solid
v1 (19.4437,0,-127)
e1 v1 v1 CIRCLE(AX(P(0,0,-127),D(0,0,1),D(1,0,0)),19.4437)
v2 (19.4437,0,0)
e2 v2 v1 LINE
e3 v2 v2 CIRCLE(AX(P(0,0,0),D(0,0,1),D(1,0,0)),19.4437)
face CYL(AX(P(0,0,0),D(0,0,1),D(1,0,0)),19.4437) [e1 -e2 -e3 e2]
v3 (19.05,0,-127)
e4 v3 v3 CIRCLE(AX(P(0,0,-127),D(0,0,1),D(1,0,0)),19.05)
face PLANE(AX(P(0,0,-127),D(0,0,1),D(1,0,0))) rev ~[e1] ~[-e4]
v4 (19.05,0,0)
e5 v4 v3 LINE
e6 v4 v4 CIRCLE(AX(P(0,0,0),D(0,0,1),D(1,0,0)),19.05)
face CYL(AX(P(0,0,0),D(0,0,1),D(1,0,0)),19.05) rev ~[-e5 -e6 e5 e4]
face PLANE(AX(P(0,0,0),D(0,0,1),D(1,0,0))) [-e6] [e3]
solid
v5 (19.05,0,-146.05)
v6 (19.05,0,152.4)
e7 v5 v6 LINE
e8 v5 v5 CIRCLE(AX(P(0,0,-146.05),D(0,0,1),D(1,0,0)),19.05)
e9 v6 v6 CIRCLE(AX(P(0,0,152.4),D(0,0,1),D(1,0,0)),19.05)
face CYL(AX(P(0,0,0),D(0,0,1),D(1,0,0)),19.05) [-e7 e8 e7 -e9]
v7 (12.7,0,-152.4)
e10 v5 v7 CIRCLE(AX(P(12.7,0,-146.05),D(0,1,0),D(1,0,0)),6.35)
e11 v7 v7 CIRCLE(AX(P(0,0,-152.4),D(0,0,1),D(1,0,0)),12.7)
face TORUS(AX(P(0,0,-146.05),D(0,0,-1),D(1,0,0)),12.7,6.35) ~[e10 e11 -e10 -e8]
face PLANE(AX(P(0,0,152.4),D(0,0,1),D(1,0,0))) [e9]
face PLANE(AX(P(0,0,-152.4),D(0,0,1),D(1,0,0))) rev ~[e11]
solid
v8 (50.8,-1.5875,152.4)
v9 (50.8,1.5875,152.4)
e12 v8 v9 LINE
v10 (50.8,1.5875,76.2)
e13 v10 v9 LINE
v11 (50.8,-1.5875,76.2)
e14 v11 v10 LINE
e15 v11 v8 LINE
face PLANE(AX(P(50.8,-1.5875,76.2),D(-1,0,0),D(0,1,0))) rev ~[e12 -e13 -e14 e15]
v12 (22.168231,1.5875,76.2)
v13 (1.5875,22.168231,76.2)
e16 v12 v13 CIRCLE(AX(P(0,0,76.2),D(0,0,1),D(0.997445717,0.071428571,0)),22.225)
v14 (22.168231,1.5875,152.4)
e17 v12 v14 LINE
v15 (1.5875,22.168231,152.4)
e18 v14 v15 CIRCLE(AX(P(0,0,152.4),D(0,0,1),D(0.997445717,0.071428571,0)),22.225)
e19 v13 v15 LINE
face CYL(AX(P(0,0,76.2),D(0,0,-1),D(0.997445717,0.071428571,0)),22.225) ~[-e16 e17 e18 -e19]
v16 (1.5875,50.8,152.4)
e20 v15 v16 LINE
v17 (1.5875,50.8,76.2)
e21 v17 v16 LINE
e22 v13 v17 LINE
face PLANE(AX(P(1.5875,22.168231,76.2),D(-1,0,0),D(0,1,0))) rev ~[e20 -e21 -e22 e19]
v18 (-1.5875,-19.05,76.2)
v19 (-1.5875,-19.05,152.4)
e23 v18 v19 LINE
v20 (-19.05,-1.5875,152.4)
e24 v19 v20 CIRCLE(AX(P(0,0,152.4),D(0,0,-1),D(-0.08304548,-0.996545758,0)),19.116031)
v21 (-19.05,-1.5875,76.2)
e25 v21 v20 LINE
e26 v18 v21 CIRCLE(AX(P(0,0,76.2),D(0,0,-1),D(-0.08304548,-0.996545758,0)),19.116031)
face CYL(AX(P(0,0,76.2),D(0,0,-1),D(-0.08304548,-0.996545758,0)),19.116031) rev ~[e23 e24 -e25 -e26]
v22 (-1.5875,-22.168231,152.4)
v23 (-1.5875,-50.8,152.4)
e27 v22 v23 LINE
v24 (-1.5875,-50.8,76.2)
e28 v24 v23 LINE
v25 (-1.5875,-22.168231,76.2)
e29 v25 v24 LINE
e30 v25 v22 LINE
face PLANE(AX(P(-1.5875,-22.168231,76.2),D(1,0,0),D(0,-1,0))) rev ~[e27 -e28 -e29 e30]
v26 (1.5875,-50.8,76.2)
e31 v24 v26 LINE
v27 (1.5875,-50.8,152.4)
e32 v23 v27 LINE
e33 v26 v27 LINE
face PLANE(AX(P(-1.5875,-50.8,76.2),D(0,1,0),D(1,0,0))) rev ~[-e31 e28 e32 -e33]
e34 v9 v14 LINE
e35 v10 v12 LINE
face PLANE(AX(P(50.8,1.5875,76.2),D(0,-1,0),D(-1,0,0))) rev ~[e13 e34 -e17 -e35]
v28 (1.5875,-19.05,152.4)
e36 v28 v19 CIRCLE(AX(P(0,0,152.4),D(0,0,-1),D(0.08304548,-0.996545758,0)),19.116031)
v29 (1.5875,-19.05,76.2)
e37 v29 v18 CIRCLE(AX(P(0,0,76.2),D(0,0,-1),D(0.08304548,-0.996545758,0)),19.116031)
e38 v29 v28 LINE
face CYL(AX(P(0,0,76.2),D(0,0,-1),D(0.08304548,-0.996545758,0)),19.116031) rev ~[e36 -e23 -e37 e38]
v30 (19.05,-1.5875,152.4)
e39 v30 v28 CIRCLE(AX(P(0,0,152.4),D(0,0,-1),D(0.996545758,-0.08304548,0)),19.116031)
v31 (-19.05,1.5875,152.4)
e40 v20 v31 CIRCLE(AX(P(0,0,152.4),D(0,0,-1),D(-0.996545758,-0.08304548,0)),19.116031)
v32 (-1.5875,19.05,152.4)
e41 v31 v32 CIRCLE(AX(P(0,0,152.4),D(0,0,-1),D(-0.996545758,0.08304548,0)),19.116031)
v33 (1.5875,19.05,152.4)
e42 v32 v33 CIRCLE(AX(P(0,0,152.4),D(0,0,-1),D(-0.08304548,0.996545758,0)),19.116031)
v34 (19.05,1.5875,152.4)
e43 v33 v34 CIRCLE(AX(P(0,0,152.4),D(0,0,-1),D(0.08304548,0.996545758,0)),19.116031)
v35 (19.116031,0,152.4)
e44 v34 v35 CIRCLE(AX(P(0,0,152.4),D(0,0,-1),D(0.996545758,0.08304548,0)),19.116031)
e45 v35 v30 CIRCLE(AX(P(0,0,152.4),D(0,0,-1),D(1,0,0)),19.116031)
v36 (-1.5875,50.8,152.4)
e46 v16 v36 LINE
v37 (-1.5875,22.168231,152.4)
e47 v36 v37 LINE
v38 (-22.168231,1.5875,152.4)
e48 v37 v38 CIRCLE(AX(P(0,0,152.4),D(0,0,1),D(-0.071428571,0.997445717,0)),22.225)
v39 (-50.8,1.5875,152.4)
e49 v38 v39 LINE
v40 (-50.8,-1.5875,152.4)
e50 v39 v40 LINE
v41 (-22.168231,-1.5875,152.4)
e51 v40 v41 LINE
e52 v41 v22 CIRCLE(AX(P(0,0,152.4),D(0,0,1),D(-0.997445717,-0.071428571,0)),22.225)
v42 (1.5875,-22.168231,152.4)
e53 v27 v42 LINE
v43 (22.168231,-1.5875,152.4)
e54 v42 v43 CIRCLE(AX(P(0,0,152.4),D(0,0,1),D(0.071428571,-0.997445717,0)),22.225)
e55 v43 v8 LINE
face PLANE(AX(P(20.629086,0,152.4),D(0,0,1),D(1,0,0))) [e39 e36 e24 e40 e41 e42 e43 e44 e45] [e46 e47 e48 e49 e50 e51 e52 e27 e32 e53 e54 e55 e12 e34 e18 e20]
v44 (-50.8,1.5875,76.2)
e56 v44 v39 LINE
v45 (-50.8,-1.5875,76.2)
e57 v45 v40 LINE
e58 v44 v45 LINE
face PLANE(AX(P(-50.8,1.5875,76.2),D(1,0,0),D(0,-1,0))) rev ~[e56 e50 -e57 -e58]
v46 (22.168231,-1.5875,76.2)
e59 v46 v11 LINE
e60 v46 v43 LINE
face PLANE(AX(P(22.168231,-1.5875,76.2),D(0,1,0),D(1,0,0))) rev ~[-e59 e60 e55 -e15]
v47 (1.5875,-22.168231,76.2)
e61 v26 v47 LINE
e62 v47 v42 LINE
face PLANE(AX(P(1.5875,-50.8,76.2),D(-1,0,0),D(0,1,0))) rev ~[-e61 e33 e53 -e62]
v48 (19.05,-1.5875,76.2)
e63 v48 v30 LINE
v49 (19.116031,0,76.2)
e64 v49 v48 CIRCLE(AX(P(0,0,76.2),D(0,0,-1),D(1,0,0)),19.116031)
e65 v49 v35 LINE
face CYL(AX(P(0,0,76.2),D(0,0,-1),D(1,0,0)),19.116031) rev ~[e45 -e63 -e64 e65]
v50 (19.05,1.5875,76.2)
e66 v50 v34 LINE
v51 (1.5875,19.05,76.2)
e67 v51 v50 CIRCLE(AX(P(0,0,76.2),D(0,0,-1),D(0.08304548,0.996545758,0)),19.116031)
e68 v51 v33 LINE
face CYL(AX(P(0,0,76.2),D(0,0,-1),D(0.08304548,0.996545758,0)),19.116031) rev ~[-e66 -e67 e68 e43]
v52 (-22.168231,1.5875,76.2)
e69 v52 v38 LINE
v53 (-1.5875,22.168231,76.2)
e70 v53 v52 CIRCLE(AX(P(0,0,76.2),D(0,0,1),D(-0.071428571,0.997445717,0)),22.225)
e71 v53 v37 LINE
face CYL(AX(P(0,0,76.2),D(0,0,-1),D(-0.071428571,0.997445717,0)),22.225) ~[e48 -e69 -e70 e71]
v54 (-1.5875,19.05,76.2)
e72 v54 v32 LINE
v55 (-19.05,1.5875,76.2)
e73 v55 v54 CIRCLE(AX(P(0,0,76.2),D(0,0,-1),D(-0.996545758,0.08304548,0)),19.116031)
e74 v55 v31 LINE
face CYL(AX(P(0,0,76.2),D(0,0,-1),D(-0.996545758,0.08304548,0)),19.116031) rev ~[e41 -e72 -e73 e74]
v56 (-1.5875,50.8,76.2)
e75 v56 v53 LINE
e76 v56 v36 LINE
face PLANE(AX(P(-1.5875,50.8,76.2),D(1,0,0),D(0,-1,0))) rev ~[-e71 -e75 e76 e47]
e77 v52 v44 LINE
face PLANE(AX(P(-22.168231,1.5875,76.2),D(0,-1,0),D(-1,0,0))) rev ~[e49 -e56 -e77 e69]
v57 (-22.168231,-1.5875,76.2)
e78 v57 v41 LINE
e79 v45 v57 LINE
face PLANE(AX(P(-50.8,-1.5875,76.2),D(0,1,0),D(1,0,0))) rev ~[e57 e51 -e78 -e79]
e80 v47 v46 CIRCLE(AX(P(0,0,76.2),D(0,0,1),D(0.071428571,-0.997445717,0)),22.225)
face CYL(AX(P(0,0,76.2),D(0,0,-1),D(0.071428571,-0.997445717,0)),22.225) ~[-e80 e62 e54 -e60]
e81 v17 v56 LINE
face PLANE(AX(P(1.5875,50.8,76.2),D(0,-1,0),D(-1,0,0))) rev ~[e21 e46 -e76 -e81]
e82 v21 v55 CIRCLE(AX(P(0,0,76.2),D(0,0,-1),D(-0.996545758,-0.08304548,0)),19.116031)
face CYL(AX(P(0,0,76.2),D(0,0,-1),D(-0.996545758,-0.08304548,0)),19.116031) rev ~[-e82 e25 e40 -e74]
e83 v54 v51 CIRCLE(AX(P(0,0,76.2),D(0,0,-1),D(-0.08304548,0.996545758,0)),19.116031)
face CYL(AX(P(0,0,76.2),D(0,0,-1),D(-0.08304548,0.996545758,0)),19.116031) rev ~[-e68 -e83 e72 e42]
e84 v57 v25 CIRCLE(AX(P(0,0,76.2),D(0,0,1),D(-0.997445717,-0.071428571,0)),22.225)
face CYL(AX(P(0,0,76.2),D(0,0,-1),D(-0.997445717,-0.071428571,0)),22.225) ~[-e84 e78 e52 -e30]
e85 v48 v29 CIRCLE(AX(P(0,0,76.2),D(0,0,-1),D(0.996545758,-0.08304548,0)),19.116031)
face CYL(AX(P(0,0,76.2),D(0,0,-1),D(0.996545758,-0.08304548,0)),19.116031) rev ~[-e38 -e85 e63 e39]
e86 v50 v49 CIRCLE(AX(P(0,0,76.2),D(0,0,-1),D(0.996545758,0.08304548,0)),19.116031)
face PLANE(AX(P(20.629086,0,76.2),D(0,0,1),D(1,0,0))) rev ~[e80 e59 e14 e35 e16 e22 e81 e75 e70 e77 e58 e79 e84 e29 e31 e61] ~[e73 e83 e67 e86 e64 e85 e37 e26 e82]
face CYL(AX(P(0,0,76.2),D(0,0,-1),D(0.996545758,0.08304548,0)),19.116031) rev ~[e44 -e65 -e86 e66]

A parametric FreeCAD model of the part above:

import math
import FreeCAD as App
import Part
import Sketcher
Q = App.Units.Quantity


def edges_at(feature, points):
    """Names of the edges that pass closest to the given points."""
    edges = feature.Shape.Edges
    near = lambda p: min(range(len(edges)), key=lambda i: edges[i].distToShape(Part.Vertex(*p))[0])
    return sorted({f"Edge{near(p) + 1}" for p in points})

doc = App.newDocument("Part")
body = doc.addObject("PartDesign::Body", "Body")

# Sketch on XY plane
sketch1 = body.newObject("Sketcher::SketchObject", "Sketch")
sketch1.AttachmentSupport = (doc.getObject("XY_Plane"), [""])
sketch1.MapMode = "FlatFace"
sketch1.addGeometry(Part.Circle(App.Vector(0, 0, 0), App.Vector(0, 0, 1), 19), False)
sketch1.addConstraint(Sketcher.Constraint("Coincident", 0, 3, -1, 1))
sketch1.addConstraint(Sketcher.Constraint("Diameter", 0, Q("1.5 in")))
pad1 = body.newObject("PartDesign::Pad", "Pad")
pad1.Profile = sketch1
pad1.Type = "TwoLengths"
pad1.Length = Q("6 in")
pad1.Length2 = Q("6 in")
doc.recompute()

fillet = body.newObject("PartDesign::Fillet", "Fillet")
fillet.Base = (pad1, edges_at(pad1, [(-19.05, 0, -152.4)]))
fillet.Radius = Q("0.25 in")
body2 = doc.addObject("PartDesign::Body", "Body001")

# Sketch on XY plane
sketch2 = body2.newObject("Sketcher::SketchObject", "Sketch001")
sketch2.AttachmentSupport = (doc.getObject("XY_Plane001"), [""])
sketch2.MapMode = "FlatFace"
sketch2.AttachmentOffset = App.Placement(App.Vector(0, 0, 3 * 25.4), App.Rotation())
sketch2.addGeometry(Part.ArcOfCircle(Part.Circle(App.Vector(0, 0, 0), App.Vector(0, 0, 1), 22.2), math.radians(-176), math.radians(-94)), False)
sketch2.addGeometry(Part.LineSegment(App.Vector(-1.6, -22.2, 0), App.Vector(-1.6, -50.8, 0)), False)
sketch2.addGeometry(Part.LineSegment(App.Vector(-1.6, -50.8, 0), App.Vector(1.6, -50.8, 0)), False)
sketch2.addGeometry(Part.LineSegment(App.Vector(1.6, -50.8, 0), App.Vector(1.6, -22.2, 0)), False)
sketch2.addGeometry(Part.ArcOfCircle(Part.Circle(App.Vector(0, 0, 0), App.Vector(0, 0, 1), 22.2), math.radians(-86), math.radians(-4)), False)
sketch2.addGeometry(Part.LineSegment(App.Vector(22.2, -1.6, 0), App.Vector(50.8, -1.6, 0)), False)
sketch2.addGeometry(Part.LineSegment(App.Vector(50.8, -1.6, 0), App.Vector(50.8, 1.6, 0)), False)
sketch2.addGeometry(Part.LineSegment(App.Vector(50.8, 1.6, 0), App.Vector(22.2, 1.6, 0)), False)
sketch2.addGeometry(Part.ArcOfCircle(Part.Circle(App.Vector(0, 0, 0), App.Vector(0, 0, 1), 22.2), math.radians(4), math.radians(86)), False)
sketch2.addGeometry(Part.LineSegment(App.Vector(1.6, 22.2, 0), App.Vector(1.6, 50.8, 0)), False)
sketch2.addGeometry(Part.LineSegment(App.Vector(1.6, 50.8, 0), App.Vector(-1.6, 50.8, 0)), False)
sketch2.addGeometry(Part.LineSegment(App.Vector(-1.6, 50.8, 0), App.Vector(-1.6, 22.2, 0)), False)
sketch2.addGeometry(Part.ArcOfCircle(Part.Circle(App.Vector(0, 0, 0), App.Vector(0, 0, 1), 22.2), math.radians(94), math.radians(176)), False)
sketch2.addGeometry(Part.LineSegment(App.Vector(-22.2, 1.6, 0), App.Vector(-50.8, 1.6, 0)), False)
sketch2.addGeometry(Part.LineSegment(App.Vector(-50.8, 1.6, 0), App.Vector(-50.8, -1.6, 0)), False)
sketch2.addGeometry(Part.LineSegment(App.Vector(-50.8, -1.6, 0), App.Vector(-22.2, -1.6, 0)), False)
sketch2.addGeometry(Part.ArcOfCircle(Part.Circle(App.Vector(0, 0, 0), App.Vector(0, 0, 1), 19.1), math.radians(0), math.radians(4.76)), False)
sketch2.addGeometry(Part.ArcOfCircle(Part.Circle(App.Vector(0, 0, 0), App.Vector(0, 0, 1), 19.1), math.radians(-4.76), math.radians(0)), False)
sketch2.addGeometry(Part.ArcOfCircle(Part.Circle(App.Vector(0, 0, 0), App.Vector(0, 0, 1), 19.1), math.radians(-85), math.radians(-5)), False)
sketch2.addGeometry(Part.ArcOfCircle(Part.Circle(App.Vector(0, 0, 0), App.Vector(0, 0, 1), 19.1), math.radians(-94.76), math.radians(-85.24)), False)
sketch2.addGeometry(Part.ArcOfCircle(Part.Circle(App.Vector(0, 0, 0), App.Vector(0, 0, 1), 19.1), math.radians(-175), math.radians(-95)), False)
sketch2.addGeometry(Part.ArcOfCircle(Part.Circle(App.Vector(0, 0, 0), App.Vector(0, 0, 1), 19.1), math.radians(175.24), math.radians(184.76)), False)
sketch2.addGeometry(Part.ArcOfCircle(Part.Circle(App.Vector(0, 0, 0), App.Vector(0, 0, 1), 19.1), math.radians(95), math.radians(175)), False)
sketch2.addGeometry(Part.ArcOfCircle(Part.Circle(App.Vector(0, 0, 0), App.Vector(0, 0, 1), 19.1), math.radians(85.24), math.radians(94.76)), False)
sketch2.addGeometry(Part.ArcOfCircle(Part.Circle(App.Vector(0, 0, 0), App.Vector(0, 0, 1), 19.1), math.radians(5), math.radians(85)), False)
sketch2.addConstraint(Sketcher.Constraint("Coincident", 0, 2, 1, 1))
sketch2.addConstraint(Sketcher.Constraint("Coincident", 1, 2, 2, 1))
sketch2.addConstraint(Sketcher.Constraint("Coincident", 2, 2, 3, 1))
sketch2.addConstraint(Sketcher.Constraint("Coincident", 3, 2, 4, 1))
sketch2.addConstraint(Sketcher.Constraint("Coincident", 4, 2, 5, 1))
sketch2.addConstraint(Sketcher.Constraint("Coincident", 5, 2, 6, 1))
sketch2.addConstraint(Sketcher.Constraint("Coincident", 6, 2, 7, 1))
sketch2.addConstraint(Sketcher.Constraint("Coincident", 7, 2, 8, 1))
sketch2.addConstraint(Sketcher.Constraint("Coincident", 8, 2, 9, 1))
sketch2.addConstraint(Sketcher.Constraint("Coincident", 9, 2, 10, 1))
sketch2.addConstraint(Sketcher.Constraint("Coincident", 10, 2, 11, 1))
sketch2.addConstraint(Sketcher.Constraint("Coincident", 11, 2, 12, 1))
sketch2.addConstraint(Sketcher.Constraint("Coincident", 12, 2, 13, 1))
sketch2.addConstraint(Sketcher.Constraint("Coincident", 13, 2, 14, 1))
sketch2.addConstraint(Sketcher.Constraint("Coincident", 14, 2, 15, 1))
sketch2.addConstraint(Sketcher.Constraint("Coincident", 15, 2, 0, 1))
sketch2.addConstraint(Sketcher.Constraint("Tangent", 16, 1, 17, 2))
sketch2.addConstraint(Sketcher.Constraint("Tangent", 17, 1, 18, 2))
sketch2.addConstraint(Sketcher.Constraint("Tangent", 18, 1, 19, 2))
sketch2.addConstraint(Sketcher.Constraint("Tangent", 19, 1, 20, 2))
sketch2.addConstraint(Sketcher.Constraint("Tangent", 20, 1, 21, 2))
sketch2.addConstraint(Sketcher.Constraint("Tangent", 21, 1, 22, 2))
sketch2.addConstraint(Sketcher.Constraint("Tangent", 22, 1, 23, 2))
sketch2.addConstraint(Sketcher.Constraint("Tangent", 23, 1, 24, 2))
sketch2.addConstraint(Sketcher.Constraint("Tangent", 24, 1, 16, 2))
sketch2.addConstraint(Sketcher.Constraint("Vertical", 1))
sketch2.addConstraint(Sketcher.Constraint("Horizontal", 2))
sketch2.addConstraint(Sketcher.Constraint("Vertical", 3))
sketch2.addConstraint(Sketcher.Constraint("Horizontal", 5))
sketch2.addConstraint(Sketcher.Constraint("Vertical", 6))
sketch2.addConstraint(Sketcher.Constraint("Horizontal", 7))
sketch2.addConstraint(Sketcher.Constraint("Vertical", 9))
sketch2.addConstraint(Sketcher.Constraint("Horizontal", 10))
sketch2.addConstraint(Sketcher.Constraint("Vertical", 11))
sketch2.addConstraint(Sketcher.Constraint("Horizontal", 13))
sketch2.addConstraint(Sketcher.Constraint("Vertical", 14))
sketch2.addConstraint(Sketcher.Constraint("Horizontal", 15))
sketch2.addConstraint(Sketcher.Constraint("Coincident", 0, 3, -1, 1))
sketch2.addConstraint(Sketcher.Constraint("Coincident", 4, 3, -1, 1))
sketch2.addConstraint(Sketcher.Constraint("Coincident", 8, 3, -1, 1))
sketch2.addConstraint(Sketcher.Constraint("Coincident", 12, 3, -1, 1))
sketch2.addConstraint(Sketcher.Constraint("Coincident", 16, 3, -1, 1))
sketch2.addConstraint(Sketcher.Constraint("Coincident", 18, 3, -1, 1))
sketch2.addConstraint(Sketcher.Constraint("Coincident", 20, 3, -1, 1))
sketch2.addConstraint(Sketcher.Constraint("Coincident", 22, 3, -1, 1))
sketch2.addConstraint(Sketcher.Constraint("Equal", 0, 4))
sketch2.addConstraint(Sketcher.Constraint("Equal", 4, 8))
sketch2.addConstraint(Sketcher.Constraint("Equal", 8, 12))
sketch2.addConstraint(Sketcher.Constraint("Symmetric", 1, 2, 9, 2, -1, 1))
sketch2.addConstraint(Sketcher.Constraint("Symmetric", 5, 2, 13, 2, -1, 1))
sketch2.addConstraint(Sketcher.Constraint("PointOnObject", 16, 1, -1))
sketch2.addConstraint(Sketcher.Constraint("Horizontal", 0, 2, 3, 2))
sketch2.addConstraint(Sketcher.Constraint("Horizontal", 8, 2, 11, 2))
sketch2.addConstraint(Sketcher.Constraint("Horizontal", 7, 2, 12, 2))
sketch2.addConstraint(Sketcher.Constraint("Horizontal", 5, 2, 14, 2))
sketch2.addConstraint(Sketcher.Constraint("Horizontal", 15, 2, 17, 1))
sketch2.addConstraint(Sketcher.Constraint("Horizontal", 18, 1, 19, 1))
sketch2.addConstraint(Sketcher.Constraint("Horizontal", 17, 1, 20, 1))
sketch2.addConstraint(Sketcher.Constraint("Horizontal", 13, 2, 21, 1))
sketch2.addConstraint(Sketcher.Constraint("Horizontal", 22, 1, 23, 1))
sketch2.addConstraint(Sketcher.Constraint("Horizontal", 21, 1, 24, 1))
sketch2.addConstraint(Sketcher.Constraint("Vertical", 9, 2, 18, 1))
sketch2.addConstraint(Sketcher.Constraint("Vertical", 19, 1, 22, 1))
sketch2.addConstraint(Sketcher.Constraint("Equal", 15, 1))
sketch2.addConstraint(Sketcher.Constraint("Equal", 10, 6))
sketch2.addConstraint(Sketcher.Constraint("DistanceY", 1, 2, -1, 1, Q("2 in")))
sketch2.addConstraint(Sketcher.Constraint("Radius", 0, Q("0.875 in")))
sketch2.addConstraint(Sketcher.Constraint("DistanceX", 2, 1, 2, 2, Q("0.125 in")))
sketch2.addConstraint(Sketcher.Constraint("DistanceX", -1, 1, 17, 1, Q("0.75 in")))
pad2 = body2.newObject("PartDesign::Pad", "Pad001")
pad2.Profile = sketch2
pad2.Length = Q("3 in")
body3 = doc.addObject("PartDesign::Body", "Body002")

# Sketch on XY plane
sketch3 = body3.newObject("Sketcher::SketchObject", "Sketch002")
sketch3.AttachmentSupport = (doc.getObject("XY_Plane002"), [""])
sketch3.MapMode = "FlatFace"
sketch3.addGeometry(Part.Circle(App.Vector(0, 0, 0), App.Vector(0, 0, 1), 19), False)
sketch3.addGeometry(Part.Circle(App.Vector(0, 0, 0), App.Vector(0, 0, 1), 19), False)
sketch3.addConstraint(Sketcher.Constraint("Coincident", 0, 3, -1, 1))
sketch3.addConstraint(Sketcher.Constraint("Coincident", 1, 3, -1, 1))
sketch3.addConstraint(Sketcher.Constraint("Diameter", 1, Q("1.5 in")))
sketch3.addConstraint(Sketcher.Constraint("Diameter", 0, Q("1.531 in")))
pad3 = body3.newObject("PartDesign::Pad", "Pad002")
pad3.Profile = sketch3
pad3.Length = Q("5 in")
pad3.Reversed = True

doc.recompute()
